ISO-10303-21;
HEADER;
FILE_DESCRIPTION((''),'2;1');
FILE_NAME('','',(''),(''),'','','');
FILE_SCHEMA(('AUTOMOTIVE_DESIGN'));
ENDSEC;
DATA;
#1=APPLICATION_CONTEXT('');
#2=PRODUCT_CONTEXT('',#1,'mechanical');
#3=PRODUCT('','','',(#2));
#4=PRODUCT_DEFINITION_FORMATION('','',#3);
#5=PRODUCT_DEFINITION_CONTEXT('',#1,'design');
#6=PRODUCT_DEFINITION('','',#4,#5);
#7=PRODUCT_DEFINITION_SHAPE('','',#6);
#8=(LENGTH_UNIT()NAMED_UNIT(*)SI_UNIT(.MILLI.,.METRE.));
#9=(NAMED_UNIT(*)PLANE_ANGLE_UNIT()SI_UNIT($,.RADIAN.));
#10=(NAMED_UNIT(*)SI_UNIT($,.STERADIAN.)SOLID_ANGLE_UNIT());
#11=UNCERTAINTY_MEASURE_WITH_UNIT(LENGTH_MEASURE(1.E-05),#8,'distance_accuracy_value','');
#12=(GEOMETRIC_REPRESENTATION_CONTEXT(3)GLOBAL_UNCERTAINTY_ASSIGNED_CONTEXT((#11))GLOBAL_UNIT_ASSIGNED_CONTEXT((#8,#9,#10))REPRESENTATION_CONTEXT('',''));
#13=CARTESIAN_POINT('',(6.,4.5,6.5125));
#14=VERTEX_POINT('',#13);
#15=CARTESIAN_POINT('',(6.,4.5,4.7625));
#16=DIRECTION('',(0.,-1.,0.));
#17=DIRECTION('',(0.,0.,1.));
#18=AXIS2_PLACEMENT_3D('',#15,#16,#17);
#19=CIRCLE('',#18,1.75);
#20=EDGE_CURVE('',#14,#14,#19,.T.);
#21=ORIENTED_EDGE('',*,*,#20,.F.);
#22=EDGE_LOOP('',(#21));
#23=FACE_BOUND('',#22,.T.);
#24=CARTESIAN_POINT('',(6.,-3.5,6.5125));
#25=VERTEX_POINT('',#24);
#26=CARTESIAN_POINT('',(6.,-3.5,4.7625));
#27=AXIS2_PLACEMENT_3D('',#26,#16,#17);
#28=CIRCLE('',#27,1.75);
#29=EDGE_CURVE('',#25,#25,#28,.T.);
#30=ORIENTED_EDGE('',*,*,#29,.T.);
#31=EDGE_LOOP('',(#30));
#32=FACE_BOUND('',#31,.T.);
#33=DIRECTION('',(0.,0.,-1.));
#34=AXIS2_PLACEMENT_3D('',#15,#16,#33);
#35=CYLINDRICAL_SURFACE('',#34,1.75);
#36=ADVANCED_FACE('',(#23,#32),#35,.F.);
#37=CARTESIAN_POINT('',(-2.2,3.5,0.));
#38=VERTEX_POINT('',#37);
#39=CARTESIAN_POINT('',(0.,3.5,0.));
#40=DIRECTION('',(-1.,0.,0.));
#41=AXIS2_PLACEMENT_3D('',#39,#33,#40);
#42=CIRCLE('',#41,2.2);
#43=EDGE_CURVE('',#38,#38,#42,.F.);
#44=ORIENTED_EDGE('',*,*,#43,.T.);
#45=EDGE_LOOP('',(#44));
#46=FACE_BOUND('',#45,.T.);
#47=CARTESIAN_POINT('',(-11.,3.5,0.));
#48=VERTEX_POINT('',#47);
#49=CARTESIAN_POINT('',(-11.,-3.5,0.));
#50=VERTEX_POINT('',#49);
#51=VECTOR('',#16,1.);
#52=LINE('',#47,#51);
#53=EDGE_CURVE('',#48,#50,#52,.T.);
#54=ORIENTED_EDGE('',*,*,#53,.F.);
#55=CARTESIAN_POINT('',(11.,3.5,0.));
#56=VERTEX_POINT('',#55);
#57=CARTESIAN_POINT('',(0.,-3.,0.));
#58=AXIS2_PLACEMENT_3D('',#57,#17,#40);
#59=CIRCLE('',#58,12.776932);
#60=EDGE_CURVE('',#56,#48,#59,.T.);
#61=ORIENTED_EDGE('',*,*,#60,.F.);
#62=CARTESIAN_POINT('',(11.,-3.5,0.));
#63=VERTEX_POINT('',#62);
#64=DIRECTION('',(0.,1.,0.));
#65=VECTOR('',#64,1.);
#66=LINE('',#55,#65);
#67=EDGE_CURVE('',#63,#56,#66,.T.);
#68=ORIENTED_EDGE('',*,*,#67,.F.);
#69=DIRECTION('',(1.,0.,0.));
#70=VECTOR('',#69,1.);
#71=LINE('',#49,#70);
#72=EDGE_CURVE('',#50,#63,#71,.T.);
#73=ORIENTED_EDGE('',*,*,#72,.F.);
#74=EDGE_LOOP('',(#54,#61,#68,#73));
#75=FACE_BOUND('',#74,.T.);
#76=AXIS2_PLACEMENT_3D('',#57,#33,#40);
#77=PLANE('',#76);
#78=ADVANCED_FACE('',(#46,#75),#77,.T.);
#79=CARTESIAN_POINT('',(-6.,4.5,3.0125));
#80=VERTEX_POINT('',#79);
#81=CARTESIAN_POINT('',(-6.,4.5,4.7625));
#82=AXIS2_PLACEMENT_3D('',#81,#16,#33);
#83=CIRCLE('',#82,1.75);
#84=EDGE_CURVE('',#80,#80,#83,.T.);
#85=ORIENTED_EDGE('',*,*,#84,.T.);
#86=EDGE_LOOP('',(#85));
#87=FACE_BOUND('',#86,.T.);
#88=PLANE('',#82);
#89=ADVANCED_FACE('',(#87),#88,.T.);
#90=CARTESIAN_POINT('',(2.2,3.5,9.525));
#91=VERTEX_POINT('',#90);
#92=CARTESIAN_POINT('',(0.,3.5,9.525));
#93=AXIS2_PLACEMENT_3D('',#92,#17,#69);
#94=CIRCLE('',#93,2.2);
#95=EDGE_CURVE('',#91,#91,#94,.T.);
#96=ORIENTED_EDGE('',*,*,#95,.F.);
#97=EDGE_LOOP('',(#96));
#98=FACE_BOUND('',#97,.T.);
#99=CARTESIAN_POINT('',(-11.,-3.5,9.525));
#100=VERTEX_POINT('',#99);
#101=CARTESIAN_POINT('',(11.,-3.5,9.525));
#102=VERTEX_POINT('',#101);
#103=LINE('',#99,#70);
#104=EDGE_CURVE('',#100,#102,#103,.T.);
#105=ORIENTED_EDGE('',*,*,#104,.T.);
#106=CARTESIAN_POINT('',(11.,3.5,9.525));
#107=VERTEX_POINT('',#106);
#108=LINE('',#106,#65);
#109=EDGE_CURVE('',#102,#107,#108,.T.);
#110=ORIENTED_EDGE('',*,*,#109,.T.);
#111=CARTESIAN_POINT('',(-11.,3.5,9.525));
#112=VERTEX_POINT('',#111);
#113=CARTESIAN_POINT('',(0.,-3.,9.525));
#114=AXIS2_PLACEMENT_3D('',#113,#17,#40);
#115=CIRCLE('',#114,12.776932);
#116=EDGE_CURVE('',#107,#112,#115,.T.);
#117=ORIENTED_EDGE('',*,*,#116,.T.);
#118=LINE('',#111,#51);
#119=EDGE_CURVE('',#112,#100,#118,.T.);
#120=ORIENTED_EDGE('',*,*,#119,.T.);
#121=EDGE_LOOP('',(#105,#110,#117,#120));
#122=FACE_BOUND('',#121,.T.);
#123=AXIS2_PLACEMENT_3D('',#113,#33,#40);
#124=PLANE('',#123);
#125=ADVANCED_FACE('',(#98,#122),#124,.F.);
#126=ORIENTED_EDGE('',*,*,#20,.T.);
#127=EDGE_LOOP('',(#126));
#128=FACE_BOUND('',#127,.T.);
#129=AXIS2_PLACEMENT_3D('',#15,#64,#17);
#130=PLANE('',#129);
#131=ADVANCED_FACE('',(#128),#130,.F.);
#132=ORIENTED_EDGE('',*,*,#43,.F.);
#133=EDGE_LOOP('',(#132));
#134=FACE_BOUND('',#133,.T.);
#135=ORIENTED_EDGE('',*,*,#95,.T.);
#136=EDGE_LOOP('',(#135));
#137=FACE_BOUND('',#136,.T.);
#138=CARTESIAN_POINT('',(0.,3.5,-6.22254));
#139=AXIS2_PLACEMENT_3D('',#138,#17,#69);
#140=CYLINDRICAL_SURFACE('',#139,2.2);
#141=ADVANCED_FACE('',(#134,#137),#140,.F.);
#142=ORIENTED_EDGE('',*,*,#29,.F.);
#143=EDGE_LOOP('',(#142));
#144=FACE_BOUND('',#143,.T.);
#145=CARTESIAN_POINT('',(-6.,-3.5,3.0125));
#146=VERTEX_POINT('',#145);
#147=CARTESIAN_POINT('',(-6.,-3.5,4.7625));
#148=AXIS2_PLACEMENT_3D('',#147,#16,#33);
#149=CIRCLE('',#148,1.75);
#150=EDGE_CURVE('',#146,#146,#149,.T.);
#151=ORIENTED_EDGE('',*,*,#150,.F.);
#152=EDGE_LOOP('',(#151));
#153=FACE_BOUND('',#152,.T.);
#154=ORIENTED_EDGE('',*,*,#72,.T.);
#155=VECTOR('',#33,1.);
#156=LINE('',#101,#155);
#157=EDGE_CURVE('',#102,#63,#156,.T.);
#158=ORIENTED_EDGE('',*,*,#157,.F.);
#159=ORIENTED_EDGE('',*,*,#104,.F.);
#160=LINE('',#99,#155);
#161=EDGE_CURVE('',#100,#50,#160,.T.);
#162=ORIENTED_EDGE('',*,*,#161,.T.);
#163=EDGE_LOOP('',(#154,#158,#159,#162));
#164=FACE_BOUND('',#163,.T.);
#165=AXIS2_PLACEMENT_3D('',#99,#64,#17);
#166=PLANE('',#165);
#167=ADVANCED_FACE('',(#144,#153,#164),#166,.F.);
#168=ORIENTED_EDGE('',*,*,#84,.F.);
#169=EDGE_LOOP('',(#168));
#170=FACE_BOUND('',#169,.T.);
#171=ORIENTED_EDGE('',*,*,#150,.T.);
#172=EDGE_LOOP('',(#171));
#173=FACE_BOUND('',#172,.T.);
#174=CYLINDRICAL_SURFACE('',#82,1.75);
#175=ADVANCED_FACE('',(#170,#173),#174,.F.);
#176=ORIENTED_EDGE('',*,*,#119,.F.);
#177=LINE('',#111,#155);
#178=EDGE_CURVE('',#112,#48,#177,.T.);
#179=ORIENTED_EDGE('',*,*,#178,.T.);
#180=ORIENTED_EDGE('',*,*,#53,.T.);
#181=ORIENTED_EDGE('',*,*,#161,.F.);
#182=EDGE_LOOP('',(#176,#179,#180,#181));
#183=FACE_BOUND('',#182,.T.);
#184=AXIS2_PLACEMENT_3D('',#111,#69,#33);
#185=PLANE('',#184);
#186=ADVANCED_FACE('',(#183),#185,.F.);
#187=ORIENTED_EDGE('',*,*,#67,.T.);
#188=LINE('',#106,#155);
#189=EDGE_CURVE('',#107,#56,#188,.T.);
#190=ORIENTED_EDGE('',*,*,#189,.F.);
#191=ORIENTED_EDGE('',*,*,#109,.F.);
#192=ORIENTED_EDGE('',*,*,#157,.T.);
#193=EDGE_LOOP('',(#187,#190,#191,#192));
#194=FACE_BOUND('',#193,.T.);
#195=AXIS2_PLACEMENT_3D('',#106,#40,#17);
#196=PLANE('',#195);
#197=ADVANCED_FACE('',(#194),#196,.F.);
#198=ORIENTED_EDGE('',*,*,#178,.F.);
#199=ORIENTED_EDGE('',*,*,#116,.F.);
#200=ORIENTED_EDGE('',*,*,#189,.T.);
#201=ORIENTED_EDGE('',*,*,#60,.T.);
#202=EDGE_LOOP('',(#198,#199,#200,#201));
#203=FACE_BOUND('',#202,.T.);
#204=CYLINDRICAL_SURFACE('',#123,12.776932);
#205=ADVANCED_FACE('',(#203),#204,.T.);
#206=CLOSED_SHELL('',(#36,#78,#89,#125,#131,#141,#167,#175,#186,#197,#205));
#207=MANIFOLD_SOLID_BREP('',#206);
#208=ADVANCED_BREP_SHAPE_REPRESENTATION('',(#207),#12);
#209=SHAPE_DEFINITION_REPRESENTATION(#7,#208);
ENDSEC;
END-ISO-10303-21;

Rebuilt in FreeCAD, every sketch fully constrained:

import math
import FreeCAD as App
import Part
import Sketcher
from FreeCAD import Vector
Q = App.Units.Quantity

doc = App.newDocument("Part")
body = doc.addObject("PartDesign::Body", "Body")

sketch1 = body.newObject("Sketcher::SketchObject", "Sketch")
sketch1.AttachmentSupport = (doc.getObject("XY_Plane"), [""])
sketch1.MapMode = "FlatFace"
sketch1.addGeometry([
    Part.LineSegment(Vector(-11, 4, 0), Vector(-11, -4, 0)),
    Part.LineSegment(Vector(-11, -4, 0), Vector(11, -4, 0)),
    Part.LineSegment(Vector(11, -4, 0), Vector(11, 4, 0)),
    Part.ArcOfCircle(Part.Circle(Vector(0, -3, 0), Vector(0, 0, 1), 13), math.radians(31), math.radians(149)),
], False)
sketch1.addConstraint([
    Sketcher.Constraint("Coincident", 0, 2, 1, 1),
    Sketcher.Constraint("Coincident", 1, 2, 2, 1),
    Sketcher.Constraint("Coincident", 2, 2, 3, 1),
    Sketcher.Constraint("Coincident", 3, 2, 0, 1),
    Sketcher.Constraint("Vertical", 0),
    Sketcher.Constraint("Horizontal", 1),
    Sketcher.Constraint("Vertical", 2),
    Sketcher.Constraint("Symmetric", 0, 2, 2, 2, -1, 1),
    Sketcher.Constraint("PointOnObject", 3, 3, -2),
    Sketcher.Constraint("DistanceX", 1, 1, 1, 2, Q("22 mm")),
    Sketcher.Constraint("DistanceY", 0, 2, 0, 1, Q("7 mm")),
    Sketcher.Constraint("DistanceY", 3, 3, -1, 1, Q("3 mm")),
])
pad1 = body.newObject("PartDesign::Pad", "Pad")
pad1.Profile = sketch1
pad1.Length = 9.525

sketch2 = body.newObject("Sketcher::SketchObject", "Sketch001")
sketch2.AttachmentSupport = (doc.getObject("XY_Plane"), [""])
sketch2.MapMode = "FlatFace"
sketch2.AttachmentOffset = App.Placement(Vector(0, 0, 9.525), App.Rotation())
sketch2.addGeometry(Part.Circle(Vector(0, 3.5, 0), Vector(0, 0, 1), 2.2), False)
sketch2.addConstraint([
    Sketcher.Constraint("PointOnObject", 0, 3, -2),
    Sketcher.Constraint("Diameter", 0, Q("4.4 mm")),
    Sketcher.Constraint("DistanceY", -1, 1, 0, 3, Q("3.5 mm")),
])
pocket1 = body.newObject("PartDesign::Pocket", "Pocket")
pocket1.Profile = sketch2
pocket1.Length = 9.525

sketch3 = body.newObject("Sketcher::SketchObject", "Sketch002")
sketch3.AttachmentSupport = (doc.getObject("XZ_Plane"), [""])
sketch3.MapMode = "FlatFace"
sketch3.AttachmentOffset = App.Placement(Vector(0, 0, 3.5), App.Rotation())
sketch3.addGeometry([
    Part.Circle(Vector(-6, 4.8, 0), Vector(0, 0, 1), 1.8),
    Part.Circle(Vector(6, 4.8, 0), Vector(0, 0, 1), 1.8),
], False)
sketch3.addConstraint([
    Sketcher.Constraint("Equal", 0, 1),
    Sketcher.Constraint("Symmetric", 0, 3, 1, 3, -2),
    Sketcher.Constraint("Diameter", 0, Q("3.5 mm")),
    Sketcher.Constraint("DistanceX", 0, 3, -1, 1, Q("6 mm")),
    Sketcher.Constraint("DistanceY", -1, 1, 0, 3, Q("4.7625 mm")),
])
pocket2 = body.newObject("PartDesign::Pocket", "Pocket001")
pocket2.Profile = sketch3
pocket2.Length = 8

doc.recompute()
